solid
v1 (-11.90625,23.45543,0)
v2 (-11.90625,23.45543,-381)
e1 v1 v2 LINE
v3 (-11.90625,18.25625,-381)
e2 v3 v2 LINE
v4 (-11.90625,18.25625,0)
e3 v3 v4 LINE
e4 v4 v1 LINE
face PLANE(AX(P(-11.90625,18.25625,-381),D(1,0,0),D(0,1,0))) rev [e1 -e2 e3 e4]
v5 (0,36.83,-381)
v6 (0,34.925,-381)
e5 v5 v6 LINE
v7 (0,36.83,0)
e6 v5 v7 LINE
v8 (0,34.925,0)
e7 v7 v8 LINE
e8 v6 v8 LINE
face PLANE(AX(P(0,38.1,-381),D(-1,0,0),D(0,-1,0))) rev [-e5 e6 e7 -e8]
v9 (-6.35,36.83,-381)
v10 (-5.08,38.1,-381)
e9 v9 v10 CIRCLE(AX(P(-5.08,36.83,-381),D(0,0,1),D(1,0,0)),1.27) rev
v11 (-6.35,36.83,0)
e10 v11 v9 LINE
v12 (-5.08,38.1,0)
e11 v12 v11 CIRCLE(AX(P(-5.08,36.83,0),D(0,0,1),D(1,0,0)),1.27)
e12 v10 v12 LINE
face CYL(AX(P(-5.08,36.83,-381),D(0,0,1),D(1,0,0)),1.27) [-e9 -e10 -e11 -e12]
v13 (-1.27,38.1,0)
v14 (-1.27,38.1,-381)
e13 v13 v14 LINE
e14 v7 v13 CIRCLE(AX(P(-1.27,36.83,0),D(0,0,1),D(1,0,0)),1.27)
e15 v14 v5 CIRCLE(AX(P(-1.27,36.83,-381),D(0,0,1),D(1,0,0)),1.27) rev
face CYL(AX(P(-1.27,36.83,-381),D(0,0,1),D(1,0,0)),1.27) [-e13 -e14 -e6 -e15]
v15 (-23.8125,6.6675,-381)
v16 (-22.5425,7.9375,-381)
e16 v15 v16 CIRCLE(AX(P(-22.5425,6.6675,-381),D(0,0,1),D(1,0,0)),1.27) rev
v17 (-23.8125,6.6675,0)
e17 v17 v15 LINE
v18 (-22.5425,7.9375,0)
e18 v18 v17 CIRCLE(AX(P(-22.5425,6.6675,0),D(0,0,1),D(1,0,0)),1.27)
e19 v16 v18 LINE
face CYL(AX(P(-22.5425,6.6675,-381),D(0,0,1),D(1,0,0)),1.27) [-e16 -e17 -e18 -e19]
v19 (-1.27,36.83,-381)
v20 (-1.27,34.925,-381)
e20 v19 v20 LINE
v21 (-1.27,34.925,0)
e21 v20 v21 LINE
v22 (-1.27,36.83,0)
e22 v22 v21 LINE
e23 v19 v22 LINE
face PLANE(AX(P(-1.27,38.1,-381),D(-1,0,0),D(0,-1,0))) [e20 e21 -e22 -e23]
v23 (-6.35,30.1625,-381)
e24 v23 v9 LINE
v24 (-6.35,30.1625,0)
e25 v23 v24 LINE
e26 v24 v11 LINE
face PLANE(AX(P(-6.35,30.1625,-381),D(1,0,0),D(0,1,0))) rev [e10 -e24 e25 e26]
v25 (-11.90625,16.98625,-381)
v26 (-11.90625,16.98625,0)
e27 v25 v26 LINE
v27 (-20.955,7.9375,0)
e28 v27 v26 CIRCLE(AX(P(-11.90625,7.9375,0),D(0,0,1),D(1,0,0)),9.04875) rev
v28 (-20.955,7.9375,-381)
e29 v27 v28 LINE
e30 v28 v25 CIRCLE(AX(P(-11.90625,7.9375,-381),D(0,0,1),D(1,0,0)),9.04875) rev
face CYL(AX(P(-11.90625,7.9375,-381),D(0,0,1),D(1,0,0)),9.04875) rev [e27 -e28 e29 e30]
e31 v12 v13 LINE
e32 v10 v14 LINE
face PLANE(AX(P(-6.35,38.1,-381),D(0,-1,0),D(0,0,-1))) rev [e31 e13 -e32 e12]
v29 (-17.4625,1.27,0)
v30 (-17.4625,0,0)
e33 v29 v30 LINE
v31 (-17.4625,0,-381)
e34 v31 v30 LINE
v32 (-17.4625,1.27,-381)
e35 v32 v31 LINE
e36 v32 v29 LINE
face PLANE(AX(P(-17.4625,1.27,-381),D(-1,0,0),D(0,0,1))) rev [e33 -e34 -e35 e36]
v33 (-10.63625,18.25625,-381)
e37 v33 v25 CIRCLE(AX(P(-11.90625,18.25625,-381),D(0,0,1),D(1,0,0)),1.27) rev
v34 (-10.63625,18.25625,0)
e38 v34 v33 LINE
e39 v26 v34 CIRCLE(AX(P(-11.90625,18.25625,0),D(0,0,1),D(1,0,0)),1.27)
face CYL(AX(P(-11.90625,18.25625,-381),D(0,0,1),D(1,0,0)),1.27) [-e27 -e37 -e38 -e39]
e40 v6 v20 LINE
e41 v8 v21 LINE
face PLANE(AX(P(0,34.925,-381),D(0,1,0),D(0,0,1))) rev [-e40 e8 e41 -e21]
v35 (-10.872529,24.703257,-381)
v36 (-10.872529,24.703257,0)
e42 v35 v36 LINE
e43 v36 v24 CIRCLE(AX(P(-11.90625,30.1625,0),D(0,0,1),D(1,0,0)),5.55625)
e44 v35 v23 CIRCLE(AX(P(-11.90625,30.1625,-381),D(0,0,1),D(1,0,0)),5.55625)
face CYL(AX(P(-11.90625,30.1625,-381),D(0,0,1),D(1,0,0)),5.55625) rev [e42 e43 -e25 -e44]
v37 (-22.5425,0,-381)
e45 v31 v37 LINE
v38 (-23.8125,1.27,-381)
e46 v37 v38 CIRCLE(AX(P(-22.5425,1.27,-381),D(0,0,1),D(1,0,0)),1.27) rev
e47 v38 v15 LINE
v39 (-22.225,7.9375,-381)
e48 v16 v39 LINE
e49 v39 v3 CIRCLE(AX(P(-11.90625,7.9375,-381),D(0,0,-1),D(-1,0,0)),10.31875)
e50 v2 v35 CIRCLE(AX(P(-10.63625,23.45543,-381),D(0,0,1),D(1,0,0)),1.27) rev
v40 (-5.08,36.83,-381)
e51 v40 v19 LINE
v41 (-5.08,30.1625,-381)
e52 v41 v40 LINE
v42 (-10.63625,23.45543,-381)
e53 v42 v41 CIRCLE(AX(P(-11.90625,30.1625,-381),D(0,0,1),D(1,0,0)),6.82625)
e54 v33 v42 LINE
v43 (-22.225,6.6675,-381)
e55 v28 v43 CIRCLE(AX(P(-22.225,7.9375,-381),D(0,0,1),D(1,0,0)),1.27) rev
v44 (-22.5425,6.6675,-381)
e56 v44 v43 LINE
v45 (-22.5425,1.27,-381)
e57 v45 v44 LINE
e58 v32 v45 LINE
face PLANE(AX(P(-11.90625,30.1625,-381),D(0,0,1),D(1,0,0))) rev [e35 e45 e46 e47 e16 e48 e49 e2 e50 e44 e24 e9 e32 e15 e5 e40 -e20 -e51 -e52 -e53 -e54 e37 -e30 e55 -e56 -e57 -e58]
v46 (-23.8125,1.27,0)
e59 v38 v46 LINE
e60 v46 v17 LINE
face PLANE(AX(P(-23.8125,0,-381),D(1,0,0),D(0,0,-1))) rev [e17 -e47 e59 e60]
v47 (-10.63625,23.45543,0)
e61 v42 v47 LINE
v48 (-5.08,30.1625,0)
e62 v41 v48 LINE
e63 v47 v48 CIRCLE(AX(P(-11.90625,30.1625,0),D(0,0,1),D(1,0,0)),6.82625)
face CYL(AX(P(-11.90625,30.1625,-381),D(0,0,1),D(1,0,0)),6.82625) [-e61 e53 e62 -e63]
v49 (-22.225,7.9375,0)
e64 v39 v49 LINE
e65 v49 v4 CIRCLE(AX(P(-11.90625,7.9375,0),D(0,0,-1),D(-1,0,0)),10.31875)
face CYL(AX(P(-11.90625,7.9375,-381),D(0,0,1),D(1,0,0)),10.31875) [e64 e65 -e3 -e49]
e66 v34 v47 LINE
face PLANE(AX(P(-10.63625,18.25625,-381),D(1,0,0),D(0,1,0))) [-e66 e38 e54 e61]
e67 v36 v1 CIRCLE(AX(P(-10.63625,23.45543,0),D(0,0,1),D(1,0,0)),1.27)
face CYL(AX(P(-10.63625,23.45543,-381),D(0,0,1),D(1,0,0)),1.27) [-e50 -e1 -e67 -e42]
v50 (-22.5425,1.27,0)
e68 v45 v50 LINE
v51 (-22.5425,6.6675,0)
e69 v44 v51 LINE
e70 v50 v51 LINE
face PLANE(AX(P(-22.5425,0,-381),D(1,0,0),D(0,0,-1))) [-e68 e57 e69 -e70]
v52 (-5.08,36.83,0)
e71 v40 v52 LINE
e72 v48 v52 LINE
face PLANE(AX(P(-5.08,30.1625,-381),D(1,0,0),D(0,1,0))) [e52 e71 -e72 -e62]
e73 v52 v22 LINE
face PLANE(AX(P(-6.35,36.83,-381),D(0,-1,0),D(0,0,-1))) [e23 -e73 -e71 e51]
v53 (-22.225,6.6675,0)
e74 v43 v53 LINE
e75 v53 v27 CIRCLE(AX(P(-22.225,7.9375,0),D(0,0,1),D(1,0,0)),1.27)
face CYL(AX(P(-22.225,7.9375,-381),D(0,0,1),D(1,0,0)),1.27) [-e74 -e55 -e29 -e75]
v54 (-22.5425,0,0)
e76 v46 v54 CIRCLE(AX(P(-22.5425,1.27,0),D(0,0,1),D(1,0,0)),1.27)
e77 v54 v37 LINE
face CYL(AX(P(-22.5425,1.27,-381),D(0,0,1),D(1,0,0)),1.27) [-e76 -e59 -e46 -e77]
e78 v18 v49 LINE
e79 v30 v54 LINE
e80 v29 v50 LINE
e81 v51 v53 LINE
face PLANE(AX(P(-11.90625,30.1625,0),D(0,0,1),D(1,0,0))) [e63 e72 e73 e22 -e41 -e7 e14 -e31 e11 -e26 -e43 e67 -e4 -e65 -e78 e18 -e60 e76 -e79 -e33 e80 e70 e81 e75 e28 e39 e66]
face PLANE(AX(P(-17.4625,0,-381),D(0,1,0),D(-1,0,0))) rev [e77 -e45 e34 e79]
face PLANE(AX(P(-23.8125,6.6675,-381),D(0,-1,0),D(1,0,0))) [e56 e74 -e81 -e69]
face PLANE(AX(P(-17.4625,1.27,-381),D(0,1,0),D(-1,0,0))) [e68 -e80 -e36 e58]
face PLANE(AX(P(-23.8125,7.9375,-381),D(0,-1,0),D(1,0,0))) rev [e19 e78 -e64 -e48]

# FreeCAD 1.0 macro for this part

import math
import FreeCAD as App
import Part
import Sketcher

V = App.Vector
Q = App.Units.Quantity


def edges_at(feature, points):
    """Names of the edges that pass closest to the given points."""
    edges = feature.Shape.Edges
    near = lambda p: min(range(len(edges)), key=lambda i: edges[i].distToShape(Part.Vertex(*p))[0])
    return sorted({f"Edge{near(p) + 1}" for p in points})

doc = App.newDocument("Part")
body = doc.addObject("PartDesign::Body", "Body")

# Sketch on XY plane
sketch1 = body.newObject("Sketcher::SketchObject", "Sketch")
sketch1.AttachmentSupport = (doc.getObject("XY_Plane"), [""])
sketch1.MapMode = "FlatFace"
sketch1.addGeometry([
    Part.LineSegment(V(-23.8, 0, 0), V(-17.5, 0, 0)),  # 0
    Part.LineSegment(V(-17.5, 0, 0), V(-17.5, 1.3, 0)),  # 1
    Part.LineSegment(V(-17.5, 1.3, 0), V(-22.5, 1.3, 0)),  # 2
    Part.LineSegment(V(-22.5, 1.3, 0), V(-22.5, 6.7, 0)),  # 3
    Part.LineSegment(V(-22.5, 6.7, 0), V(-20.9, 6.7, 0)),  # 4
    Part.ArcOfCircle(Part.Circle(V(-11.9, 7.9, 0), V(0, 0, 1), 9), math.radians(82), math.radians(188)),  # 5
    Part.LineSegment(V(-10.6, 16.9, 0), V(-10.6, 23.5, 0)),  # 6
    Part.ArcOfCircle(Part.Circle(V(-11.9, 30.2, 0), V(0, 0, 1), 6.8), math.radians(-79), math.radians(0)),  # 7
    Part.LineSegment(V(-5.1, 30.2, 0), V(-5.1, 36.8, 0)),  # 8
    Part.LineSegment(V(-5.1, 36.8, 0), V(-1.3, 36.8, 0)),  # 9
    Part.LineSegment(V(-1.3, 36.8, 0), V(-1.3, 34.9, 0)),  # 10
    Part.LineSegment(V(-1.3, 34.9, 0), V(0, 34.9, 0)),  # 11
    Part.LineSegment(V(0, 34.9, 0), V(0, 38.1, 0)),  # 12
    Part.LineSegment(V(0, 38.1, 0), V(-6.3, 38.1, 0)),  # 13
    Part.LineSegment(V(-6.3, 38.1, 0), V(-6.3, 30.2, 0)),  # 14
    Part.ArcOfCircle(Part.Circle(V(-11.9, 30.2, 0), V(0, 0, 1), 5.6), math.radians(-90), math.radians(0)),  # 15
    Part.LineSegment(V(-11.9, 24.6, 0), V(-11.9, 18.3, 0)),  # 16
    Part.ArcOfCircle(Part.Circle(V(-11.9, 7.9, 0), V(0, 0, 1), 10.3), math.radians(90), math.radians(180)),  # 17
    Part.LineSegment(V(-22.2, 7.9, 0), V(-23.8, 7.9, 0)),  # 18
    Part.LineSegment(V(-23.8, 7.9, 0), V(-23.8, 0, 0)),  # 19
], False)
sketch1.addConstraint([
    Sketcher.Constraint("Coincident", 0, 2, 1, 1),
    Sketcher.Constraint("Coincident", 1, 2, 2, 1),
    Sketcher.Constraint("Coincident", 2, 2, 3, 1),
    Sketcher.Constraint("Coincident", 3, 2, 4, 1),
    Sketcher.Constraint("Coincident", 4, 2, 5, 2),
    Sketcher.Constraint("Coincident", 5, 1, 6, 1),
    Sketcher.Constraint("Coincident", 6, 2, 7, 1),
    Sketcher.Constraint("Tangent", 7, 2, 8, 1),
    Sketcher.Constraint("Coincident", 8, 2, 9, 1),
    Sketcher.Constraint("Coincident", 9, 2, 10, 1),
    Sketcher.Constraint("Coincident", 10, 2, 11, 1),
    Sketcher.Constraint("Coincident", 11, 2, 12, 1),
    Sketcher.Constraint("Coincident", 12, 2, 13, 1),
    Sketcher.Constraint("Coincident", 13, 2, 14, 1),
    Sketcher.Constraint("Tangent", 14, 2, 15, 2),
    Sketcher.Constraint("Coincident", 15, 1, 16, 1),
    Sketcher.Constraint("Coincident", 16, 2, 17, 1),
    Sketcher.Constraint("Coincident", 17, 2, 18, 1),
    Sketcher.Constraint("Coincident", 18, 2, 19, 1),
    Sketcher.Constraint("Coincident", 19, 2, 0, 1),
    Sketcher.Constraint("Horizontal", 0),
    Sketcher.Constraint("Vertical", 1),
    Sketcher.Constraint("Horizontal", 2),
    Sketcher.Constraint("Vertical", 3),
    Sketcher.Constraint("Horizontal", 4),
    Sketcher.Constraint("Vertical", 6),
    Sketcher.Constraint("Vertical", 8),
    Sketcher.Constraint("Horizontal", 9),
    Sketcher.Constraint("Vertical", 10),
    Sketcher.Constraint("Horizontal", 11),
    Sketcher.Constraint("Vertical", 12),
    Sketcher.Constraint("Horizontal", 13),
    Sketcher.Constraint("Vertical", 14),
    Sketcher.Constraint("Vertical", 16),
    Sketcher.Constraint("Horizontal", 18),
    Sketcher.Constraint("Vertical", 19),
    Sketcher.Constraint("Coincident", 15, 3, 7, 3),
    Sketcher.Constraint("Coincident", 17, 3, 5, 3),
    Sketcher.Constraint("PointOnObject", 0, 2, -1),
    Sketcher.Constraint("PointOnObject", 11, 2, -2),
    Sketcher.Constraint("Horizontal", 5, 3, 17, 2),
    Sketcher.Constraint("Vertical", 5, 3, 7, 3),
    Sketcher.Constraint("Vertical", 17, 3, 15, 1),
    Sketcher.Constraint("Equal", 0, 13),
    Sketcher.Constraint("Equal", 11, 1),
    Sketcher.Constraint("Equal", 13, 16),
    Sketcher.Constraint("Equal", 14, 19),
    Sketcher.Constraint("DistanceX", 2, 2, 2, 1, Q("0.2 in")),
    Sketcher.Constraint("Radius", 15, Q("0.21875 in")),
    Sketcher.Constraint("Radius", 17, Q("0.40625 in")),
    Sketcher.Constraint("DistanceX", 0, 1, 0, 2, Q("0.25 in")),
    Sketcher.Constraint("DistanceX", 9, 1, 9, 2, Q("0.15 in")),
    Sketcher.Constraint("DistanceX", 11, 1, 11, 2, Q("0.05 in")),
    Sketcher.Constraint("DistanceY", -1, 1, 12, 2, Q("1.5 in")),
    Sketcher.Constraint("DistanceX", 18, 2, 18, 1, Q("0.0625 in")),
    Sketcher.Constraint("DistanceY", 10, 2, 10, 1, Q("0.075 in")),
    Sketcher.Constraint("DistanceY", 12, 1, 12, 2, Q("0.125 in")),
    Sketcher.Constraint("DistanceY", 3, 2, 5, 3, Q("0.05 in")),
    Sketcher.Constraint("DistanceX", 5, 3, 5, 1, Q("0.05 in")),
    Sketcher.Constraint("Radius", 5, Q("9.04875 mm")),
])
pad1 = body.newObject("PartDesign::Pad", "Pad")
pad1.Profile = sketch1
pad1.Length = Q("15 in")
pad1.Reversed = True
doc.recompute()

fillet = body.newObject("PartDesign::Fillet", "Fillet")
fillet.Base = (pad1, edges_at(pad1, [
    (-10.636, 16.897, -190.5),
    (-20.865, 6.668, -190.5),
    (-23.812, 0, -190.5),
    (-23.812, 7.938, -190.5),
    (-11.906, 24.606, -190.5),
    (-6.35, 38.1, -190.5),
    (0, 38.1, -190.5),
]))
fillet.Radius = Q("0.05 in")

doc.recompute()
